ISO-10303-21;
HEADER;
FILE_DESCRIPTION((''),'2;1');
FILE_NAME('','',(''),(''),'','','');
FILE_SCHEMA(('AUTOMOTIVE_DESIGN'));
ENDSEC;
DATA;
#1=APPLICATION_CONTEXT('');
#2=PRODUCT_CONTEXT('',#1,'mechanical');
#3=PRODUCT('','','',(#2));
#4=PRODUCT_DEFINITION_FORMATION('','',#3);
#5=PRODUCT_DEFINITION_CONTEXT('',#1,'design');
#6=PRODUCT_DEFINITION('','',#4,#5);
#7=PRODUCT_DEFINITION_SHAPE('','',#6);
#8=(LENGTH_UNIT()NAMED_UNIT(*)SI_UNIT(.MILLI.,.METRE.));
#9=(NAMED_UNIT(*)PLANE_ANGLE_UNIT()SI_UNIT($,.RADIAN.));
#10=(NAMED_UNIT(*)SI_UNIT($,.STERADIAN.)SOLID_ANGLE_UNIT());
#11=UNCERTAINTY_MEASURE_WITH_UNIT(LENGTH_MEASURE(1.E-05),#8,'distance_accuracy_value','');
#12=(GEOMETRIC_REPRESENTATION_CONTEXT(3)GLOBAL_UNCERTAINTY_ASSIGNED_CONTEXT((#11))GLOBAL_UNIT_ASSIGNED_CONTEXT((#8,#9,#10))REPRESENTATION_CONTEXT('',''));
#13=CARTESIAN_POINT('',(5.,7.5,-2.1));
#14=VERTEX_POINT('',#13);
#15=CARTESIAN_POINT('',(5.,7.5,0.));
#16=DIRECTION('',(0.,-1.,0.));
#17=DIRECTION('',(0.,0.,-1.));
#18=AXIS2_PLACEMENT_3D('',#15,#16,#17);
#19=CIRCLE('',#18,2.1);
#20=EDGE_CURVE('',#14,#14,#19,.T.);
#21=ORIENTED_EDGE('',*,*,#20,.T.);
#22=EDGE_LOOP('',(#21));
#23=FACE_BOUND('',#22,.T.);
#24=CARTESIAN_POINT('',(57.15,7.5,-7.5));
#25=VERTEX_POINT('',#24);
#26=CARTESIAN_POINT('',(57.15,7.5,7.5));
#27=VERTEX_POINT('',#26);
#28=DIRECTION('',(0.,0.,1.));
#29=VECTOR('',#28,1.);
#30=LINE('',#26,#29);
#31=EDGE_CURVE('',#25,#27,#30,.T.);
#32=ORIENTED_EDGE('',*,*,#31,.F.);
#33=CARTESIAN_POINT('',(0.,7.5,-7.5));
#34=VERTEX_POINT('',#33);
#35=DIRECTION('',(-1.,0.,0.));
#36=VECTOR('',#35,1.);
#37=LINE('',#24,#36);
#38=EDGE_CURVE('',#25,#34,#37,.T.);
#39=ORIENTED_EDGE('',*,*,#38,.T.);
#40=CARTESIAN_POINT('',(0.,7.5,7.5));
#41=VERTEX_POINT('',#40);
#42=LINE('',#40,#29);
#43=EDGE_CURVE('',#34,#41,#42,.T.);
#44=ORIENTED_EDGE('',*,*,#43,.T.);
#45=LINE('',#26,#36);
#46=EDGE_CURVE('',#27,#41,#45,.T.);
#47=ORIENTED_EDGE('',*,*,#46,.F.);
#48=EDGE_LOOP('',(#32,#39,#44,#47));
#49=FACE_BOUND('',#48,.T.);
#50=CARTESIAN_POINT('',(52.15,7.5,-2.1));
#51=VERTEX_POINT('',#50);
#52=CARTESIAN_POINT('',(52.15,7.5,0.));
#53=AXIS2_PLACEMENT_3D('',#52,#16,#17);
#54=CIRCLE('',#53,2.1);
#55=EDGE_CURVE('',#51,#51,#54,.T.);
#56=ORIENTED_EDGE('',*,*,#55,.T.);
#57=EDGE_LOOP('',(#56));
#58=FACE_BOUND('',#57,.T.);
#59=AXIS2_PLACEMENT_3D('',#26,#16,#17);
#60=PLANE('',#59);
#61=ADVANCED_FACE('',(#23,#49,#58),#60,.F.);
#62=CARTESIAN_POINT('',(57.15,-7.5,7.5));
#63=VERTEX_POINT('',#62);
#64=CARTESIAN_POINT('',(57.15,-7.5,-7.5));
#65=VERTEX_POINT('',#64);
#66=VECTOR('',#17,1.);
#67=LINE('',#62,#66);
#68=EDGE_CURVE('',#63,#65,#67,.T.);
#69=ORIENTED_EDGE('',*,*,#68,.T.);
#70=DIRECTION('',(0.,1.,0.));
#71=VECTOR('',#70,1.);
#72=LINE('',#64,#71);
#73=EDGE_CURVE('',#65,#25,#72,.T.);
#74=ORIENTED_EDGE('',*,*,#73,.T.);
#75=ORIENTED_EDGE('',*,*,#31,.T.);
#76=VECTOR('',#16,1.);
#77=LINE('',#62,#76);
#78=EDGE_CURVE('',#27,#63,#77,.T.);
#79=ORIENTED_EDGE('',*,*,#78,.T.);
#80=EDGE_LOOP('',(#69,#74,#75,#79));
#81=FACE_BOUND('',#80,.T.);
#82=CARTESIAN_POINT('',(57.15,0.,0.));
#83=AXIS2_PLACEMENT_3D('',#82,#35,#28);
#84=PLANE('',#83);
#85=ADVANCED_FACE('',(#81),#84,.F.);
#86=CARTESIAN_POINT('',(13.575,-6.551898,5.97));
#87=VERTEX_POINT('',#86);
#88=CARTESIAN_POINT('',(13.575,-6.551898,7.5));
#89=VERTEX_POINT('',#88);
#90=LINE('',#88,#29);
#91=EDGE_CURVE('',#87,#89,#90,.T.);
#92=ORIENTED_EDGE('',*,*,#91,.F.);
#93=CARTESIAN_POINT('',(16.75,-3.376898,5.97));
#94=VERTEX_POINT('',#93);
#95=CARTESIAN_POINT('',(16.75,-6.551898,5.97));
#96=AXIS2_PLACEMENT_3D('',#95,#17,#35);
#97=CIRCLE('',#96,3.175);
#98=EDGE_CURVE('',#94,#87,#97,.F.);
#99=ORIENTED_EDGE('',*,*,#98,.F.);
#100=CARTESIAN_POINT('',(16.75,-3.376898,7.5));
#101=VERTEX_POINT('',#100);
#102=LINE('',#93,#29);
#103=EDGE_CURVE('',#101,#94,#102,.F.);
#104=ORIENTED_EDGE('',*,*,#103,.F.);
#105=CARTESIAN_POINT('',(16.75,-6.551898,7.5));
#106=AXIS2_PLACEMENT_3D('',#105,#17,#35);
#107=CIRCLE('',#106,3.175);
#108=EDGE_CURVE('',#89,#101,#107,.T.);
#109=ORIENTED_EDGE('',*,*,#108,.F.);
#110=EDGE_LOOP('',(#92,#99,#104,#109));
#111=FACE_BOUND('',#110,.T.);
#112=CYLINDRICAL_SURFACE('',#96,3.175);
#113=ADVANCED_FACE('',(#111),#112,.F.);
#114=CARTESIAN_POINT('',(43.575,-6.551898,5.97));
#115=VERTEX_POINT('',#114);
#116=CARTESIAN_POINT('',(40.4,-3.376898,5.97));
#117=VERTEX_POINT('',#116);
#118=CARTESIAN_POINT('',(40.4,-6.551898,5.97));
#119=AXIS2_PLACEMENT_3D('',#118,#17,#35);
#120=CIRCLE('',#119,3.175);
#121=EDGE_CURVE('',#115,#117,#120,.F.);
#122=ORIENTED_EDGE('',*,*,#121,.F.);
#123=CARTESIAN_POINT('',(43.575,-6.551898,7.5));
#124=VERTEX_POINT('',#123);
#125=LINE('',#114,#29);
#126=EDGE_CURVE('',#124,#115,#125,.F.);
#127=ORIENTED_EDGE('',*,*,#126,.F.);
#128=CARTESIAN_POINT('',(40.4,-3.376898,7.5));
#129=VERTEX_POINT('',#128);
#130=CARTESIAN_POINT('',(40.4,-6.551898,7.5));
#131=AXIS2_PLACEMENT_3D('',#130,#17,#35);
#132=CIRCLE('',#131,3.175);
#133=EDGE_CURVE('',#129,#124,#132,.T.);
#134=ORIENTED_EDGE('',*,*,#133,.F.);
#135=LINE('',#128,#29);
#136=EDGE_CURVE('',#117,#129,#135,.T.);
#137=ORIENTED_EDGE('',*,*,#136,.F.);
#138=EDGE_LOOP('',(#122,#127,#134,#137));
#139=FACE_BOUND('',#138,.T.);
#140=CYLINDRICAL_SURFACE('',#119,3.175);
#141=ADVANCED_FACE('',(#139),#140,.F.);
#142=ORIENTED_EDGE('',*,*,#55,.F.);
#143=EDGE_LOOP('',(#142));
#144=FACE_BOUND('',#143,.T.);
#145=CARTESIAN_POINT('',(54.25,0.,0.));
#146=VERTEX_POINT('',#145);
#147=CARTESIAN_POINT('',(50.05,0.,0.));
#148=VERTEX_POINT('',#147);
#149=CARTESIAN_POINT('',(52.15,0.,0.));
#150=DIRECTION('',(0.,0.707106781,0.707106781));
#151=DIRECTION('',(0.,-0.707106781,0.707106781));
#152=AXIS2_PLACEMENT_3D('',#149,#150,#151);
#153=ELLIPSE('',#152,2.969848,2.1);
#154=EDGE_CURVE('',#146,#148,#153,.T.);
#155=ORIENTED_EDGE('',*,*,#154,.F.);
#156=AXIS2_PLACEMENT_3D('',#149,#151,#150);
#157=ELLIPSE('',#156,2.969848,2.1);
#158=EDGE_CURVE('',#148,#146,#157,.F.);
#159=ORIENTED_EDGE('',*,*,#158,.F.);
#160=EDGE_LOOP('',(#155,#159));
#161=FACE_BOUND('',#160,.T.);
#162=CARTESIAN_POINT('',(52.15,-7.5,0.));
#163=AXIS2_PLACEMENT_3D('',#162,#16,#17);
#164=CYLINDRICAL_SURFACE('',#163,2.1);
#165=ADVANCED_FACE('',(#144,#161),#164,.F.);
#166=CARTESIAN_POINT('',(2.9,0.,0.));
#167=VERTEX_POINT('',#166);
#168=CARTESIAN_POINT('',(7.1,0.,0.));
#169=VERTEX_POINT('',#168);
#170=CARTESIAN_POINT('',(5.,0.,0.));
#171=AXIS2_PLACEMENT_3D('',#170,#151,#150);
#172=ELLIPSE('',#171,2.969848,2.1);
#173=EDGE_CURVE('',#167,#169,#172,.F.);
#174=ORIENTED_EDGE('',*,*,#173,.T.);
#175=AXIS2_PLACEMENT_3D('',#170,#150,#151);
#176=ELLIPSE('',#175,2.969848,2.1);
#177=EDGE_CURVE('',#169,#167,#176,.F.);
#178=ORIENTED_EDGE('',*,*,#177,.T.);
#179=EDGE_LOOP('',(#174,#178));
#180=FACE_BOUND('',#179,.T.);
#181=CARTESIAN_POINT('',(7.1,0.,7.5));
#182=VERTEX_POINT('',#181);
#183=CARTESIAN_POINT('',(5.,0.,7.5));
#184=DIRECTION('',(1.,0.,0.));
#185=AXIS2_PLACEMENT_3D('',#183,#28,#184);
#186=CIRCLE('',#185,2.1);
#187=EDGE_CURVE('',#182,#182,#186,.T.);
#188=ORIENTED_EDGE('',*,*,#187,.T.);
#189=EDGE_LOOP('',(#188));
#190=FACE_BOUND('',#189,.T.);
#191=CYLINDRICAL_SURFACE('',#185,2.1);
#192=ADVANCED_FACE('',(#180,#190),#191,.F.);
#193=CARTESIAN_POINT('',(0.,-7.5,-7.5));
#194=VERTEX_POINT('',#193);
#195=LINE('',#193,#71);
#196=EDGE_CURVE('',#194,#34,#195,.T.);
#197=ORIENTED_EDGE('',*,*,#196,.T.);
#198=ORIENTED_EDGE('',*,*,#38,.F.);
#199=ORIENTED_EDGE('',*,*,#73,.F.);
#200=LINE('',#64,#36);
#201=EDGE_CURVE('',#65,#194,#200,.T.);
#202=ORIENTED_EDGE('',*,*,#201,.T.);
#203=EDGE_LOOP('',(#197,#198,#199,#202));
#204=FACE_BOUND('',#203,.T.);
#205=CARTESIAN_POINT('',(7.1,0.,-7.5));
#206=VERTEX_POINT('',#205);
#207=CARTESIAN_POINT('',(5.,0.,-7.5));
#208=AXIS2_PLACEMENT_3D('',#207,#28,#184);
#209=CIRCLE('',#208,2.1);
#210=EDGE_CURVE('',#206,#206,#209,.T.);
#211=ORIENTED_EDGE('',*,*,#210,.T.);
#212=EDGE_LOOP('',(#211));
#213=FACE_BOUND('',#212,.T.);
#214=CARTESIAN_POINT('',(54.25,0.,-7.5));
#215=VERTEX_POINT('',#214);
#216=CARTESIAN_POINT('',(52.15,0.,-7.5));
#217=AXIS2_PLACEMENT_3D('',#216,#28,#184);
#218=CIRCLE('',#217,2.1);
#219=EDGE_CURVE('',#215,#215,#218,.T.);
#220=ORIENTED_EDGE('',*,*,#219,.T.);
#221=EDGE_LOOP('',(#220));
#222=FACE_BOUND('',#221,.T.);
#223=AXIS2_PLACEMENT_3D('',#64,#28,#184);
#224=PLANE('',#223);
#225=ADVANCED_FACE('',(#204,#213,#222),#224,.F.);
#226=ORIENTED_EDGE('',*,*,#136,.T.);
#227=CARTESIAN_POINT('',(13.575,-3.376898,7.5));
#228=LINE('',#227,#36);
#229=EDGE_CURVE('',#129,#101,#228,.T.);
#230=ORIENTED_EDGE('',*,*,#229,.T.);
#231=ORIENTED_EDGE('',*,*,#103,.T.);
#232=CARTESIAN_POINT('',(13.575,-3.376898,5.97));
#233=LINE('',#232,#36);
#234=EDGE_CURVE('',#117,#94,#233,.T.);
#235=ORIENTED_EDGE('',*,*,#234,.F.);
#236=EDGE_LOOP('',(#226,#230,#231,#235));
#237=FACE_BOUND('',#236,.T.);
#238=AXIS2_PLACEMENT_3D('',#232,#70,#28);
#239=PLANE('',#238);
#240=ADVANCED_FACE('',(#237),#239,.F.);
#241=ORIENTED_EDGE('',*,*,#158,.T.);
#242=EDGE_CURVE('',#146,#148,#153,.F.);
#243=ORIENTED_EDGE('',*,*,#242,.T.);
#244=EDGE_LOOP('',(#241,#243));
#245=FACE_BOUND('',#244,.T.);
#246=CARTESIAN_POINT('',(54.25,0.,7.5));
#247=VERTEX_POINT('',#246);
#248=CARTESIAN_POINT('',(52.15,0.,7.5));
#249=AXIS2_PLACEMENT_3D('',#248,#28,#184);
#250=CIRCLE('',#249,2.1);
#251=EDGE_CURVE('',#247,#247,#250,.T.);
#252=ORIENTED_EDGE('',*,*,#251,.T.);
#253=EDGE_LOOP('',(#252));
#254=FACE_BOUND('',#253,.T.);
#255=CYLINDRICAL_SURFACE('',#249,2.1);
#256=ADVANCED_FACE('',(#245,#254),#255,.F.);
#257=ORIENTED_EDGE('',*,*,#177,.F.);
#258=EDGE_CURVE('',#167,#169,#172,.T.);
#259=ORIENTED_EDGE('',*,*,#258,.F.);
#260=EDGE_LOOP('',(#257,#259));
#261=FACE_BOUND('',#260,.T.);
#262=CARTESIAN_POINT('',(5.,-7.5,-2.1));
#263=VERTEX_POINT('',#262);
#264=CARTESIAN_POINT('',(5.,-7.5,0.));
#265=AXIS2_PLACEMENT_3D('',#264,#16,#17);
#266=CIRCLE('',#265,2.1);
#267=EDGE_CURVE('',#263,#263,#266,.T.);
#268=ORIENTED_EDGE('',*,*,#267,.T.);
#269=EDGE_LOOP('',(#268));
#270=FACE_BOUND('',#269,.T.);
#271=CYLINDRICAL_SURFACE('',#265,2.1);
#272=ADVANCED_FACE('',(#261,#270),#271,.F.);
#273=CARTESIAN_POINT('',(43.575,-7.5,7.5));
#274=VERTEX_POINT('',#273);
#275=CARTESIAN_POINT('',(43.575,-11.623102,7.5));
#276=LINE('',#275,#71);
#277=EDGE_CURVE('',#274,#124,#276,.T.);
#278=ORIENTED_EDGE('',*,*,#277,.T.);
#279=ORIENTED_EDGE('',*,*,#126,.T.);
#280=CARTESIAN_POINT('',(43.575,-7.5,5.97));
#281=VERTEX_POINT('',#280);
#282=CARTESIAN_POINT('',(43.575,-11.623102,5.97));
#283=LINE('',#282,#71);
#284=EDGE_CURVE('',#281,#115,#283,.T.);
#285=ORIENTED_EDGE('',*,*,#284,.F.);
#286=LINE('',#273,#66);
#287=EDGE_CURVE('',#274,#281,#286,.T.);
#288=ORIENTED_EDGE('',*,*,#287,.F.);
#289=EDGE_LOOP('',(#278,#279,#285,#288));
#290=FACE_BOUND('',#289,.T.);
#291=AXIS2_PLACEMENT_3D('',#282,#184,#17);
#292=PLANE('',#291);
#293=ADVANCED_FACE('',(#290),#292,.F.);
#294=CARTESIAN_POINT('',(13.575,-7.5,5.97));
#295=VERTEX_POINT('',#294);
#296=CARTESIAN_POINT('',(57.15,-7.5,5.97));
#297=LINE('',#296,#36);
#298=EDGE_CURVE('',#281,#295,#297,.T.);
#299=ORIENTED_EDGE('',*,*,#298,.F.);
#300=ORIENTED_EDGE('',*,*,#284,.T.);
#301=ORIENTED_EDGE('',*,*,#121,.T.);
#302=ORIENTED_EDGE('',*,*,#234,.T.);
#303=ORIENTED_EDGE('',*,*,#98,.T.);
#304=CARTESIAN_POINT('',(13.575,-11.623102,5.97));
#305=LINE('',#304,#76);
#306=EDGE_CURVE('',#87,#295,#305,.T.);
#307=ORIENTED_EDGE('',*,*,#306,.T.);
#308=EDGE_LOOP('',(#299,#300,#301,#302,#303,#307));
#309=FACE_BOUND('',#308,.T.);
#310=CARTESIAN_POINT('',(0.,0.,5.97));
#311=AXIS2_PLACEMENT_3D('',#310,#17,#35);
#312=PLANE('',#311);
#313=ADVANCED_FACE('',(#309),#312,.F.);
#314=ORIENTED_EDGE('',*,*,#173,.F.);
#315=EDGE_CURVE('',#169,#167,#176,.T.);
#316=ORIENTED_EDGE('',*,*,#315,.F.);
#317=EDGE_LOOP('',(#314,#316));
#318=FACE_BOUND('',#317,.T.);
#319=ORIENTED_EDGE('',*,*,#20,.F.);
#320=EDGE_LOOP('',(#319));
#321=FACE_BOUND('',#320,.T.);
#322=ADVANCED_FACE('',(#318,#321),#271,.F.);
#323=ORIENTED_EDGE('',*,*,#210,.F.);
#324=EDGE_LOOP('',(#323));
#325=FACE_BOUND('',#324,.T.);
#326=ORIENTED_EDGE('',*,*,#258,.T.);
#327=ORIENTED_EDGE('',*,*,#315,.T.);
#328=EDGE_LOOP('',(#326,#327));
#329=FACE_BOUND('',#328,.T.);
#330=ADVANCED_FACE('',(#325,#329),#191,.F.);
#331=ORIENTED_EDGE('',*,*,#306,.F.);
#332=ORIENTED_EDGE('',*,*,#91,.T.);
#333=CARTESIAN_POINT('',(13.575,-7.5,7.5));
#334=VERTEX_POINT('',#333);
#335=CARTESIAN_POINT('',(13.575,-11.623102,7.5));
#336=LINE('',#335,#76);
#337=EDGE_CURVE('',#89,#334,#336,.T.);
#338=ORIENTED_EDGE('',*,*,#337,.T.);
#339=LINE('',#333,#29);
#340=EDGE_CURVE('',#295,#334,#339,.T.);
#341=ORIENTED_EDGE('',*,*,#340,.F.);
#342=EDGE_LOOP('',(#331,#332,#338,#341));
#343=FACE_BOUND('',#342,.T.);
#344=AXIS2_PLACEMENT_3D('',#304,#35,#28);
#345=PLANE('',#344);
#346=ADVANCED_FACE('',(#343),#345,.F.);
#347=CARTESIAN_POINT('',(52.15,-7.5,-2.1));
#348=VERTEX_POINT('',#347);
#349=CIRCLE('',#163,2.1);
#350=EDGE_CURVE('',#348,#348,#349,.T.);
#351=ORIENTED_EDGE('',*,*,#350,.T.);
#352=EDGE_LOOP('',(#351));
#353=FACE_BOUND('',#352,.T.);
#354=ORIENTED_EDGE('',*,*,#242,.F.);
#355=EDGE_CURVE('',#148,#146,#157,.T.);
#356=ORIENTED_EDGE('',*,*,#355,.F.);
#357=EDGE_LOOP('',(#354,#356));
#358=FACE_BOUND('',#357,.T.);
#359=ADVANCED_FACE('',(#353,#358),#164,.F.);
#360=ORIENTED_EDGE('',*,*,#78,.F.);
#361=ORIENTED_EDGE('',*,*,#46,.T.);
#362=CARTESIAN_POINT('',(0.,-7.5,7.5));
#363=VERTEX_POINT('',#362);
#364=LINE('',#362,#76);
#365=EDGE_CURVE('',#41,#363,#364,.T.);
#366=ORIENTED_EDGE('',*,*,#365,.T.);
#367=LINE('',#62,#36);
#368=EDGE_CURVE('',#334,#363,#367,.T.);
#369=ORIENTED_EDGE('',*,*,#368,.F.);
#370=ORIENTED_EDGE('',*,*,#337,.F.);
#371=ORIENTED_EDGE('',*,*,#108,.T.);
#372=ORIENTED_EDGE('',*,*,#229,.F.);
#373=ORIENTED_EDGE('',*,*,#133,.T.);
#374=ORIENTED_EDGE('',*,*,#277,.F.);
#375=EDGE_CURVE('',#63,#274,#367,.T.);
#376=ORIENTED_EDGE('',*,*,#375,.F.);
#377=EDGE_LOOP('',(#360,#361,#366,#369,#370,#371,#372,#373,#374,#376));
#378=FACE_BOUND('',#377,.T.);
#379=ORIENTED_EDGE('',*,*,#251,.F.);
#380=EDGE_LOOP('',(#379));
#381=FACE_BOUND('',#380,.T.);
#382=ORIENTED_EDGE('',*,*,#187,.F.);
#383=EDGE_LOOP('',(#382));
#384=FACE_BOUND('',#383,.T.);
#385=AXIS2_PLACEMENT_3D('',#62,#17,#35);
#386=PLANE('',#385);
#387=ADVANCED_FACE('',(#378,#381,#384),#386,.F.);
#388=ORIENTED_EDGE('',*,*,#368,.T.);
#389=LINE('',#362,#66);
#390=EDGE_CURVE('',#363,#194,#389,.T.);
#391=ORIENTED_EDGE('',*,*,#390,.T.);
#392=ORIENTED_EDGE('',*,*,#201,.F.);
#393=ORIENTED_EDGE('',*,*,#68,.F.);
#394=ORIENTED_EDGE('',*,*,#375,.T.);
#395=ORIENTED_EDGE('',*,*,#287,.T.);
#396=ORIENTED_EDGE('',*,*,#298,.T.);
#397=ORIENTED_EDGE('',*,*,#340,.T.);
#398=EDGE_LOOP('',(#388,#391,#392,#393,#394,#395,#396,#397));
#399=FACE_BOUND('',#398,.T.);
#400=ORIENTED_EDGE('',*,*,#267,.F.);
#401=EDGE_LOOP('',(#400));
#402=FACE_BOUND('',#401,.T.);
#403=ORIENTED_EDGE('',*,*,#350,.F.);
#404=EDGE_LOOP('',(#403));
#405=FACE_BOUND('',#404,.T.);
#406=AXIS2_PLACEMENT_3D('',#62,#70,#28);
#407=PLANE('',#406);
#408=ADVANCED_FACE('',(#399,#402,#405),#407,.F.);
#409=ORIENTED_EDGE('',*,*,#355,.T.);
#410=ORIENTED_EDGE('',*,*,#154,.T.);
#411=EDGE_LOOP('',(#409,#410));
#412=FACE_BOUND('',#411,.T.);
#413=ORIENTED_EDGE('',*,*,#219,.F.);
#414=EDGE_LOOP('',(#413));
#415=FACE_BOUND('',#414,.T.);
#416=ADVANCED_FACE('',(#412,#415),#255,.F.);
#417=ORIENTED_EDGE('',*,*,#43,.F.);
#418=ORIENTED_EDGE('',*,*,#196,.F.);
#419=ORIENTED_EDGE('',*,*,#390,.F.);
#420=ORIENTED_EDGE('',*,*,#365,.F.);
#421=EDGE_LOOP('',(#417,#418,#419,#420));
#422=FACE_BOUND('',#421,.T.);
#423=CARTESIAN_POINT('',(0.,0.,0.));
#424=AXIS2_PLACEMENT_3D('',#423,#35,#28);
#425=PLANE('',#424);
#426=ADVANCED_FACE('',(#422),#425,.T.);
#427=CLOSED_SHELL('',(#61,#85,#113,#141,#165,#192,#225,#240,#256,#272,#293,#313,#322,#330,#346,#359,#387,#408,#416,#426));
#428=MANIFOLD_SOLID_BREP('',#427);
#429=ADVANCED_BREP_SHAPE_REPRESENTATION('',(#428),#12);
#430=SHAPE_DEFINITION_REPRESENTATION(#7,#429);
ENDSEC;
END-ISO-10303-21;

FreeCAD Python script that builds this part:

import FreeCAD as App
import Part
import Sketcher
from FreeCAD import Vector
Q = App.Units.Quantity


def edges_at(feature, points):
    """Names of the edges that pass closest to the given points."""
    edges = feature.Shape.Edges
    near = lambda p: min(range(len(edges)), key=lambda i: edges[i].distToShape(Part.Vertex(*p))[0])
    return sorted({f"Edge{near(p) + 1}" for p in points})


def add_polygon(sketch, points):
    """Adds a closed chain of lines whose ends are joined by coincident constraints."""
    first, n = sketch.GeometryCount, len(points)
    for a, b in zip(points, points[1:] + points[:1]):
        sketch.addGeometry(Part.LineSegment(App.Vector(*a, 0), App.Vector(*b, 0)), False)
    for i in range(n):
        sketch.addConstraint(Sketcher.Constraint("Coincident", first + i, 2, first + (i + 1) % n, 1))

doc = App.newDocument("Part")
params = doc.addObject("Spreadsheet::Sheet", "Params")
for row, (alias, value) in enumerate([
    ("sketch1_width", "15 mm"),
    ("pad1_length", "57.15 mm"),
    ("sketch2_diameter", "4.2 mm"),
    ("hole_diameter", "4.2 mm"),
    ("sketch3_diameter", "4.2 mm"),
    ("hole2_diameter", "4.2 mm"),
    ("sketch4_width", "30 mm"),
    ("pocket1_length", "1.53 mm"),
    ("fillet_radius", "3.175 mm"),
], start=1):
    params.set(f"A{row}", alias)
    params.set(f"B{row}", "=" + value)
    params.setAlias(f"B{row}", alias)

body = doc.addObject("PartDesign::Body", "Body")

# Sketch on YZ plane
sketch1 = doc.addObject("Sketcher::SketchObject", "Sketch")
body.addObject(sketch1)
sketch1.AttachmentSupport = (doc.YZ_Plane, [""])
sketch1.MapMode = "FlatFace"
add_polygon(sketch1, [(8, 8), (-8, 8), (-8, -8), (8, -8)])  # lines 0-3
sketch1.addConstraint([
    Sketcher.Constraint("Horizontal", 0),
    Sketcher.Constraint("Vertical", 1),
    Sketcher.Constraint("Horizontal", 2),
    Sketcher.Constraint("Vertical", 3),
    Sketcher.Constraint("Symmetric", 0, 2, 2, 2, -1, 1),
    Sketcher.Constraint("Equal", 2, 1),
    Sketcher.Constraint("DistanceX", 0, 2, 0, 1, Q("15 mm")),
])
sketch1.setExpression("Constraints[10]", "Params.sketch1_width")
pad1 = doc.addObject("PartDesign::Pad", "Pad")
body.addObject(pad1)
pad1.Profile = sketch1
pad1.setExpression("Length", "Params.pad1_length")

# Sketch on XY plane
sketch2 = doc.addObject("Sketcher::SketchObject", "Sketch001")
body.addObject(sketch2)
sketch2.AttachmentSupport = (doc.XY_Plane, [""])
sketch2.MapMode = "FlatFace"
sketch2.AttachmentOffset = App.Placement(Vector(0, 0, 7.5), App.Rotation())
sketch2.addGeometry([
    Part.Circle(Vector(5, 0, 0), Vector(0, 0, 1), 2.1),
    Part.Circle(Vector(52.1, 0, 0), Vector(0, 0, 1), 2.1),
], False)
sketch2.addConstraint([
    Sketcher.Constraint("Equal", 0, 1),
    Sketcher.Constraint("PointOnObject", 0, 3, -1),
    Sketcher.Constraint("PointOnObject", 1, 3, -1),
    Sketcher.Constraint("Diameter", 0, Q("4.2 mm")),
    Sketcher.Constraint("DistanceX", -1, 1, 0, 3, Q("5 mm")),
    Sketcher.Constraint("DistanceX", -1, 1, 1, 3, Q("52.15 mm")),
])
sketch2.setExpression("Constraints[3]", "Params.sketch2_diameter")
doc.recompute()
hole = doc.addObject("PartDesign::Hole", "Hole")
body.addObject(hole)
hole.Profile = sketch2
hole.ThreadType = "None"
hole.setExpression("Diameter", "Params.hole_diameter")
hole.DepthType = "ThroughAll"

# Sketch on XZ plane
sketch3 = doc.addObject("Sketcher::SketchObject", "Sketch002")
body.addObject(sketch3)
sketch3.AttachmentSupport = (doc.XZ_Plane, [""])
sketch3.MapMode = "FlatFace"
sketch3.AttachmentOffset = App.Placement(Vector(0, 0, 7.5), App.Rotation())
sketch3.addGeometry([
    Part.Circle(Vector(5, 0, 0), Vector(0, 0, 1), 2.1),
    Part.Circle(Vector(52.1, 0, 0), Vector(0, 0, 1), 2.1),
], False)
sketch3.addConstraint([
    Sketcher.Constraint("Equal", 0, 1),
    Sketcher.Constraint("PointOnObject", 0, 3, -1),
    Sketcher.Constraint("PointOnObject", 1, 3, -1),
    Sketcher.Constraint("Diameter", 0, Q("4.2 mm")),
    Sketcher.Constraint("DistanceX", -1, 1, 0, 3, Q("5 mm")),
    Sketcher.Constraint("DistanceX", -1, 1, 1, 3, Q("52.15 mm")),
])
sketch3.setExpression("Constraints[3]", "Params.sketch3_diameter")
doc.recompute()
hole2 = doc.addObject("PartDesign::Hole", "Hole001")
body.addObject(hole2)
hole2.Profile = sketch3
hole2.ThreadType = "None"
hole2.setExpression("Diameter", "Params.hole2_diameter")
hole2.DepthType = "ThroughAll"

# Sketch on XY plane
sketch4 = doc.addObject("Sketcher::SketchObject", "Sketch003")
body.addObject(sketch4)
sketch4.AttachmentSupport = (doc.XY_Plane, [""])
sketch4.MapMode = "FlatFace"
sketch4.AttachmentOffset = App.Placement(Vector(0, 0, 7.5), App.Rotation())
add_polygon(sketch4, [(14, -3), (14, -12), (44, -12), (44, -3)])  # lines 0-3
sketch4.addConstraint([
    Sketcher.Constraint("Vertical", 0),
    Sketcher.Constraint("Horizontal", 1),
    Sketcher.Constraint("Vertical", 2),
    Sketcher.Constraint("Horizontal", 3),
    Sketcher.Constraint("DistanceX", 1, 1, 1, 2, Q("30 mm")),
    Sketcher.Constraint("DistanceX", -1, 1, 0, 2, Q("13.575 mm")),
    Sketcher.Constraint("DistanceY", 0, 2, -1, 1, Q("11.623102 mm")),
    Sketcher.Constraint("DistanceY", 2, 2, -1, 1, Q("3.376898 mm")),
])
sketch4.setExpression("Constraints[8]", "Params.sketch4_width")
pocket1 = doc.addObject("PartDesign::Pocket", "Pocket")
body.addObject(pocket1)
pocket1.Profile = sketch4
pocket1.setExpression("Length", "Params.pocket1_length")
doc.recompute()

fillet = doc.addObject("PartDesign::Fillet", "Fillet")
body.addObject(fillet)
fillet.Base = (pocket1, edges_at(pocket1, [(43.575, -3.377, 6.735), (13.575, -3.377, 6.735)]))
fillet.setExpression("Radius", "Params.fillet_radius")

doc.recompute()
